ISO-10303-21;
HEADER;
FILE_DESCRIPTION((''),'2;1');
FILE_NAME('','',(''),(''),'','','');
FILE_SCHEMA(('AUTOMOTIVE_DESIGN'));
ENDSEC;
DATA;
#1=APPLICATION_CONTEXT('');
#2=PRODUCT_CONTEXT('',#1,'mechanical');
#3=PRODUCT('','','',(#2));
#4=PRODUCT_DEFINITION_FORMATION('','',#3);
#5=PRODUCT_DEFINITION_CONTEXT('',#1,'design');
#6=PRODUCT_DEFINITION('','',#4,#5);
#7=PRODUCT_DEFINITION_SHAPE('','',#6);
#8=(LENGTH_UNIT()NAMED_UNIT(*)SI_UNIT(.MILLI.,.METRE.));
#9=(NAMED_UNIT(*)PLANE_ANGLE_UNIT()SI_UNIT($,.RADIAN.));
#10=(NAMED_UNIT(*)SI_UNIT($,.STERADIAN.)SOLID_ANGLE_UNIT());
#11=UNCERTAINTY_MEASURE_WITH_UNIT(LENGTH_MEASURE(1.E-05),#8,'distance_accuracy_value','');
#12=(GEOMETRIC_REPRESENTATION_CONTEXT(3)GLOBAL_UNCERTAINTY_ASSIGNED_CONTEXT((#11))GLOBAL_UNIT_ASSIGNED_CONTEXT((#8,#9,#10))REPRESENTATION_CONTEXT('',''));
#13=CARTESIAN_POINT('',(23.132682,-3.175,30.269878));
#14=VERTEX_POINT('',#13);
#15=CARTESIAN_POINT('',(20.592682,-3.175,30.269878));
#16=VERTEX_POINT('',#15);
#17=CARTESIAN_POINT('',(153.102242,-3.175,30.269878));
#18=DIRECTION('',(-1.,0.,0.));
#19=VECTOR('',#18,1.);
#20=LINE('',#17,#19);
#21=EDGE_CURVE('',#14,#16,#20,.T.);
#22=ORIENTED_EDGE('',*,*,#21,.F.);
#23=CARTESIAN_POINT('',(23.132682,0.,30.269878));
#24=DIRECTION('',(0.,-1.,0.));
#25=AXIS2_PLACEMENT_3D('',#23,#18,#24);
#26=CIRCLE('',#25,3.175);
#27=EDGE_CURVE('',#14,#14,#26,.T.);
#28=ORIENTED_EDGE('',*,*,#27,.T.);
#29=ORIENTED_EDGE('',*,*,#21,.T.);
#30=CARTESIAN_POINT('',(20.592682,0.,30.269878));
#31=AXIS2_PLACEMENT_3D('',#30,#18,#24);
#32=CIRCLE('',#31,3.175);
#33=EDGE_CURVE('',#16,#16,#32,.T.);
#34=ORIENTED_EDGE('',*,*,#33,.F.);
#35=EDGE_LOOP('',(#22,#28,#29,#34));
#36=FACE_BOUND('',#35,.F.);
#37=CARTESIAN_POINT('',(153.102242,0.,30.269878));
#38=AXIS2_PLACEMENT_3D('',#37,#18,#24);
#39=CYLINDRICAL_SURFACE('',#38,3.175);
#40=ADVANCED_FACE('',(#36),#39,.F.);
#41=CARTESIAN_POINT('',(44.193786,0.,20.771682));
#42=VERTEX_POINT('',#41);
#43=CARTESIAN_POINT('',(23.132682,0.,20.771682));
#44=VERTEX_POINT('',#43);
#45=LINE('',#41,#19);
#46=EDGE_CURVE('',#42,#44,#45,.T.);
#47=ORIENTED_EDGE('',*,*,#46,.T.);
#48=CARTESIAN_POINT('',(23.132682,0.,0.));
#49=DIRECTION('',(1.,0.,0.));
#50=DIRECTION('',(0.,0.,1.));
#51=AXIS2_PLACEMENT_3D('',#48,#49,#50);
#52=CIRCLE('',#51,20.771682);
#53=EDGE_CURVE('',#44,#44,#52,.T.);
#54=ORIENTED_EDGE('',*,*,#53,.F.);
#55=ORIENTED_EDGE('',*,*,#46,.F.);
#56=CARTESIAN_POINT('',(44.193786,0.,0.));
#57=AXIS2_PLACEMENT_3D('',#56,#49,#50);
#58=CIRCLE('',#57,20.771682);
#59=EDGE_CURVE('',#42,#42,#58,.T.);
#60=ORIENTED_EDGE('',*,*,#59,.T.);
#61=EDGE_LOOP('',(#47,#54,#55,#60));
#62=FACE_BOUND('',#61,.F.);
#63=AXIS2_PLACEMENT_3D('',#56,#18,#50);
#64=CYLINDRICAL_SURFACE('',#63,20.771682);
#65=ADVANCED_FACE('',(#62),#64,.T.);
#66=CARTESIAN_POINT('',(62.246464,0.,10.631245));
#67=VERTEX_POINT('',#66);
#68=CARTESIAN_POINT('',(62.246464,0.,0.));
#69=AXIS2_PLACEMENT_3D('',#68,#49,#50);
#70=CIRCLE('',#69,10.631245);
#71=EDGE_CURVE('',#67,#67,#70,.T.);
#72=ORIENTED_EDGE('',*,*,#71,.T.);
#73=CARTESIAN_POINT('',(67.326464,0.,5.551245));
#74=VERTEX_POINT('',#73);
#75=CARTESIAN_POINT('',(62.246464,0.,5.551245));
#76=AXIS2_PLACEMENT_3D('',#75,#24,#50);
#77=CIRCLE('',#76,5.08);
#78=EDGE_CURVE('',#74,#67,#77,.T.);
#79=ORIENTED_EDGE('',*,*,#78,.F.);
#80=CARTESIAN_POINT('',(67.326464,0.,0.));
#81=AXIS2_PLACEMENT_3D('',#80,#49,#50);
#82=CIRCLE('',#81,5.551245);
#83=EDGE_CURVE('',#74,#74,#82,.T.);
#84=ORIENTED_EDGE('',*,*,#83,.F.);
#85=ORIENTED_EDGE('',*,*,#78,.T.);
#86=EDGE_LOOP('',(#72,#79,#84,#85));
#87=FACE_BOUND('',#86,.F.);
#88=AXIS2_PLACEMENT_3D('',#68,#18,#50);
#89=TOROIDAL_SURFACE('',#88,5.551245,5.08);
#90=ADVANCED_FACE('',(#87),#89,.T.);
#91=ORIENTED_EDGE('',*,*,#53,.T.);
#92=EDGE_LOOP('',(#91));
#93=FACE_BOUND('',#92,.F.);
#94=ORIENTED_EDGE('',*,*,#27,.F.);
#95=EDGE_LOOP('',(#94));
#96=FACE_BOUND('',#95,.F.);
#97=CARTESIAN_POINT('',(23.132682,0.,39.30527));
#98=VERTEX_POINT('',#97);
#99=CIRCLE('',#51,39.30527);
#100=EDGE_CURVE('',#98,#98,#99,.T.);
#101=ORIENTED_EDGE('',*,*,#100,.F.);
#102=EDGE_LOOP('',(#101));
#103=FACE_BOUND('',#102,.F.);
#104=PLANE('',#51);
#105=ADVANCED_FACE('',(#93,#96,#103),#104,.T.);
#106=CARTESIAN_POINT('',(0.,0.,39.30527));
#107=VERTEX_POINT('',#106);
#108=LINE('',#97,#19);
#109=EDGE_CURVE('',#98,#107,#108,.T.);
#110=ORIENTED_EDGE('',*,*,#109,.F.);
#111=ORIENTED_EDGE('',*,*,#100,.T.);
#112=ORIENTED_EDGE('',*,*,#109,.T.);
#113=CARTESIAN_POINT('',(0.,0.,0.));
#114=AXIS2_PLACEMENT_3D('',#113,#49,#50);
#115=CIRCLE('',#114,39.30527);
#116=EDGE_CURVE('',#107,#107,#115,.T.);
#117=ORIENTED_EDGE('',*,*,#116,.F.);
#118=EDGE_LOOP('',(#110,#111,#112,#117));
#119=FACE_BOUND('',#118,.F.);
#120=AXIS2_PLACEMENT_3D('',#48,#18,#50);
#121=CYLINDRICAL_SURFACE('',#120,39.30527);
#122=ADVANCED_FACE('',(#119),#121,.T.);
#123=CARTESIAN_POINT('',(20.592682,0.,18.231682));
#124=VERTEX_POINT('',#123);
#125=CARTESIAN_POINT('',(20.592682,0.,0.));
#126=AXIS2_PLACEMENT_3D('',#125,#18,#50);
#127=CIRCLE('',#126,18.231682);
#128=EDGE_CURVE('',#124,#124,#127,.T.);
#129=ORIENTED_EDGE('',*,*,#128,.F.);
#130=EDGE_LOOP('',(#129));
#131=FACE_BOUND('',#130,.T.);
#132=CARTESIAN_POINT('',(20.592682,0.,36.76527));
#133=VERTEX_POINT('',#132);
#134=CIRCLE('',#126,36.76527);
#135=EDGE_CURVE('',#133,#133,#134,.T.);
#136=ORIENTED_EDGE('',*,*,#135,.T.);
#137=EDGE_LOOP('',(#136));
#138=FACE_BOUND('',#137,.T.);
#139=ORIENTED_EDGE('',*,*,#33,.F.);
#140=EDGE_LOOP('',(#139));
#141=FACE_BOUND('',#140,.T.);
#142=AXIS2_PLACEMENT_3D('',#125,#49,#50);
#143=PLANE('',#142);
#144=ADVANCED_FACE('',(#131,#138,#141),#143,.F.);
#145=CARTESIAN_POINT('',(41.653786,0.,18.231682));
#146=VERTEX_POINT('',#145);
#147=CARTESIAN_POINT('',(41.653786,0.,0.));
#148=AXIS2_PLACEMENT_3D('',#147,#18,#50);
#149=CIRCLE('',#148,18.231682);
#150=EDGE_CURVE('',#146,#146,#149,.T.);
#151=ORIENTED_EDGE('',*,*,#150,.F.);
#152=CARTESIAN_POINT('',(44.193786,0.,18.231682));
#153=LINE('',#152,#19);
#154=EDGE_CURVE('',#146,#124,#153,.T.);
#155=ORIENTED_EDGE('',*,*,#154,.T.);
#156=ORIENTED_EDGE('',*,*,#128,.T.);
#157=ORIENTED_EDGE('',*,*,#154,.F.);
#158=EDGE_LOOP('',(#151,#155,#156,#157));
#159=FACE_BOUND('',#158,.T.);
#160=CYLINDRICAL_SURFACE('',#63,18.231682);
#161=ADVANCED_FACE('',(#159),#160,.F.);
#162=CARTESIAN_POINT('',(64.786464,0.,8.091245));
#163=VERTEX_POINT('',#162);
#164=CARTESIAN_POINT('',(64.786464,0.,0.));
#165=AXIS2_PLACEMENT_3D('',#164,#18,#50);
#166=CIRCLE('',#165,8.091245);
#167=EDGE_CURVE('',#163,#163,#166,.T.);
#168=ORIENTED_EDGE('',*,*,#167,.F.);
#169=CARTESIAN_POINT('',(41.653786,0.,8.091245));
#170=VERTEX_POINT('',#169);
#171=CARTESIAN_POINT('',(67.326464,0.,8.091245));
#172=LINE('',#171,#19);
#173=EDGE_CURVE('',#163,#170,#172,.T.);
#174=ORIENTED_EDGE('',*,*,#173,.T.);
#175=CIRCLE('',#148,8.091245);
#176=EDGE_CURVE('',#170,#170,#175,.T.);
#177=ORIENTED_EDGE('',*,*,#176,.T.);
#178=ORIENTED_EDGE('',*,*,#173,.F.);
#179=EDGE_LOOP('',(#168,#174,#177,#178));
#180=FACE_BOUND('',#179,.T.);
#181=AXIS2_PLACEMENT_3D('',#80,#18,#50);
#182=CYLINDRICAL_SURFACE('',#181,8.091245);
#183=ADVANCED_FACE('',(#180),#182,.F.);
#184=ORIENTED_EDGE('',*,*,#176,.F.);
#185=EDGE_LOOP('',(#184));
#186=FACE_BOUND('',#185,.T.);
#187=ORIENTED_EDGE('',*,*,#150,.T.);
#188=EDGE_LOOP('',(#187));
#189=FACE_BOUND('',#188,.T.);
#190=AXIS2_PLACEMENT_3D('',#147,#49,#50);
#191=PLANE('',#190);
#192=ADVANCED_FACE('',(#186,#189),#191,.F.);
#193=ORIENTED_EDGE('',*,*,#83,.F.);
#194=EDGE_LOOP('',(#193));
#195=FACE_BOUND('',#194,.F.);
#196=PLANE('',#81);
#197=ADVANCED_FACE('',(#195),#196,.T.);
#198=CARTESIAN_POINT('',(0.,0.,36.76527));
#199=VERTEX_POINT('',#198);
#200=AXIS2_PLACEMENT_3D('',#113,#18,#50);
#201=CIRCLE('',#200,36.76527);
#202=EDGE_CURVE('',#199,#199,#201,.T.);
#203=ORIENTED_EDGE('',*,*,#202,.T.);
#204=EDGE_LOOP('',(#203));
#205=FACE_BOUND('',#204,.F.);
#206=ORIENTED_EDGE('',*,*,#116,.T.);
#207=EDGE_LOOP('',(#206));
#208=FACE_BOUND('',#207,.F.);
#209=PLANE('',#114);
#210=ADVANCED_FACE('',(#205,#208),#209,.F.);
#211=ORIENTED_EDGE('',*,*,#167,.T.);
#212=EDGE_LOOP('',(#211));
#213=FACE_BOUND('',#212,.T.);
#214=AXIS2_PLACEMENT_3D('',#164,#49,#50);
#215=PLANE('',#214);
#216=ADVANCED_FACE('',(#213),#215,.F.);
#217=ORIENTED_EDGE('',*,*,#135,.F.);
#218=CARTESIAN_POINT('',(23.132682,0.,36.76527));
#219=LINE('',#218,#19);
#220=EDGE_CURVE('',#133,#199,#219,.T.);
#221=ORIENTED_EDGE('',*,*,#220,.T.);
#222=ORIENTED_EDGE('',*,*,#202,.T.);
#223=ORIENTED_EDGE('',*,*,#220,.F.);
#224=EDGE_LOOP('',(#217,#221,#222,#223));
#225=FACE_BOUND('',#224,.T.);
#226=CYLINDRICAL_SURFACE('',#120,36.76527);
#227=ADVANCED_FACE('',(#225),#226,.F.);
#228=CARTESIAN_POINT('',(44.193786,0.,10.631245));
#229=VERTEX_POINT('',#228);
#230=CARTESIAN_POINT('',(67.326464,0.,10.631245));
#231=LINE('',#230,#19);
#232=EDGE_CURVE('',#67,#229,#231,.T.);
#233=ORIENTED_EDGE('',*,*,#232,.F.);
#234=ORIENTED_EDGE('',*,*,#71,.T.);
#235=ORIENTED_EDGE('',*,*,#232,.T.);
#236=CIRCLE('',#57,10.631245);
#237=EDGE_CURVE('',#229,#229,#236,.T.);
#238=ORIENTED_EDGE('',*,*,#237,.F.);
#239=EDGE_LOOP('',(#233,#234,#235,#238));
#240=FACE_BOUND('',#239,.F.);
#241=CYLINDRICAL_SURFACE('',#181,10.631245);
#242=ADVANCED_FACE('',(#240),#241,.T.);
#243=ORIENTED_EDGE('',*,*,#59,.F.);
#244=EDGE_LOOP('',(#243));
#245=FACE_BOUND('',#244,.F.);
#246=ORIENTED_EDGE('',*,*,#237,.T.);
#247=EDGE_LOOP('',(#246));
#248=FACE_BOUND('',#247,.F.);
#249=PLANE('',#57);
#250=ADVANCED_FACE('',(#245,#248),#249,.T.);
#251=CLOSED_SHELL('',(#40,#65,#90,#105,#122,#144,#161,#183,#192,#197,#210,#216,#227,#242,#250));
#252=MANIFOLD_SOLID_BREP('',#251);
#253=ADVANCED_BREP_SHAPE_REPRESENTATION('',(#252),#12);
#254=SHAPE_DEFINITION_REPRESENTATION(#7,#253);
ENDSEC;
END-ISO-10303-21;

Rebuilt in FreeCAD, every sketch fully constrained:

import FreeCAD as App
import Part
import Sketcher
from FreeCAD import Vector
Q = App.Units.Quantity


def edges_at(feature, points):
    """Names of the edges that pass closest to the given points."""
    edges = feature.Shape.Edges
    near = lambda p: min(range(len(edges)), key=lambda i: edges[i].distToShape(Part.Vertex(*p))[0])
    return sorted({f"Edge{near(p) + 1}" for p in points})


def faces_at(feature, points):
    """Names of the faces that lie closest to the given points."""
    faces = feature.Shape.Faces
    near = lambda p: min(range(len(faces)), key=lambda i: faces[i].distToShape(Part.Vertex(*p))[0])
    return sorted({f"Face{near(p) + 1}" for p in points})

doc = App.newDocument("Part")
body = doc.addObject("PartDesign::Body", "Body")

# Sketch on XZ plane
sketch1 = doc.addObject("Sketcher::SketchObject", "Sketch")
body.addObject(sketch1)
sketch1.AttachmentSupport = (doc.XZ_Plane, [""])
sketch1.MapMode = "FlatFace"
sketch1.addGeometry([
    Part.LineSegment(Vector(0, 39.30527, 0), Vector(0, 0, 0)),  # 0
    Part.LineSegment(Vector(0, 0, 0), Vector(67.326464, 0, 0)),  # 1
    Part.LineSegment(Vector(67.326464, 0, 0), Vector(67.326464, 10.631245, 0)),  # 2
    Part.LineSegment(Vector(67.326464, 10.631245, 0), Vector(44.193786, 10.631245, 0)),  # 3
    Part.LineSegment(Vector(44.193786, 10.631245, 0), Vector(44.193786, 20.771682, 0)),  # 4
    Part.LineSegment(Vector(44.193786, 20.771682, 0), Vector(23.132682, 20.771682, 0)),  # 5
    Part.LineSegment(Vector(23.132682, 20.771682, 0), Vector(23.132682, 39.30527, 0)),  # 6
    Part.LineSegment(Vector(23.132682, 39.30527, 0), Vector(0, 39.30527, 0)),  # 7
], False)
sketch1.addConstraint([
    Sketcher.Constraint("Coincident", 0, 2, 1, 1),
    Sketcher.Constraint("Coincident", 1, 2, 2, 1),
    Sketcher.Constraint("Coincident", 2, 2, 3, 1),
    Sketcher.Constraint("Coincident", 3, 2, 4, 1),
    Sketcher.Constraint("Coincident", 4, 2, 5, 1),
    Sketcher.Constraint("Coincident", 5, 2, 6, 1),
    Sketcher.Constraint("Coincident", 6, 2, 7, 1),
    Sketcher.Constraint("Coincident", 7, 2, 0, 1),
    Sketcher.Constraint("Vertical", 0),
    Sketcher.Constraint("Horizontal", 1),
    Sketcher.Constraint("Vertical", 2),
    Sketcher.Constraint("Horizontal", 3),
    Sketcher.Constraint("Vertical", 4),
    Sketcher.Constraint("Horizontal", 5),
    Sketcher.Constraint("Vertical", 6),
    Sketcher.Constraint("Horizontal", 7),
    Sketcher.Constraint("Coincident", 0, 2, -1, 1),
    Sketcher.Constraint("DistanceX", 3, 2, 3, 1, 23.132678),
    Sketcher.Constraint("DistanceX", 7, 2, 7, 1, 23.132682),
    Sketcher.Constraint("DistanceY", 0, 2, 0, 1, 39.30527),
    Sketcher.Constraint("DistanceX", 1, 1, 1, 2, 67.326464),
    Sketcher.Constraint("DistanceY", 2, 1, 2, 2, 10.631245),
    Sketcher.Constraint("DistanceY", 4, 1, 4, 2, 10.140438),
])
revolution = doc.addObject("PartDesign::Revolution", "Revolution")
body.addObject(revolution)
revolution.Profile = sketch1
revolution.ReferenceAxis = (sketch1, ["H_Axis"])
revolution.Angle = 360
doc.recompute()

thickness = doc.addObject("PartDesign::Thickness", "Thickness")
body.addObject(thickness)
thickness.Base = (revolution, faces_at(revolution, [(0, 0, 0)]))
thickness.Value = Q("0.1 in")
thickness.Reversed = True
thickness.Join = "Intersection"
doc.recompute()

fillet = doc.addObject("PartDesign::Fillet", "Fillet")
body.addObject(fillet)
fillet.Base = (thickness, edges_at(thickness, [(67.326, 0, -10.631)]))
fillet.Radius = Q("0.2 in")

# Sketch on YZ plane
sketch2 = doc.addObject("Sketcher::SketchObject", "Sketch001")
body.addObject(sketch2)
sketch2.AttachmentSupport = (doc.YZ_Plane, [""])
sketch2.MapMode = "FlatFace"
sketch2.AttachmentOffset = App.Placement(Vector(0, 0, 23.132682), App.Rotation())
sketch2.addGeometry(Part.Circle(Vector(0, 30.269878, 0), Vector(0, 0, 1), 3.175), False)
sketch2.addConstraint([
    Sketcher.Constraint("PointOnObject", 0, 3, -2),
    Sketcher.Constraint("Diameter", 0, Q("0.25 in")),
    Sketcher.Constraint("DistanceY", -1, 1, 0, 3, 30.269878),
])
doc.recompute()
hole = doc.addObject("PartDesign::Hole", "Hole")
body.addObject(hole)
hole.Profile = sketch2
hole.ThreadType = "None"
hole.Diameter = Q("0.25 in")
hole.DepthType = "ThroughAll"

doc.recompute()
